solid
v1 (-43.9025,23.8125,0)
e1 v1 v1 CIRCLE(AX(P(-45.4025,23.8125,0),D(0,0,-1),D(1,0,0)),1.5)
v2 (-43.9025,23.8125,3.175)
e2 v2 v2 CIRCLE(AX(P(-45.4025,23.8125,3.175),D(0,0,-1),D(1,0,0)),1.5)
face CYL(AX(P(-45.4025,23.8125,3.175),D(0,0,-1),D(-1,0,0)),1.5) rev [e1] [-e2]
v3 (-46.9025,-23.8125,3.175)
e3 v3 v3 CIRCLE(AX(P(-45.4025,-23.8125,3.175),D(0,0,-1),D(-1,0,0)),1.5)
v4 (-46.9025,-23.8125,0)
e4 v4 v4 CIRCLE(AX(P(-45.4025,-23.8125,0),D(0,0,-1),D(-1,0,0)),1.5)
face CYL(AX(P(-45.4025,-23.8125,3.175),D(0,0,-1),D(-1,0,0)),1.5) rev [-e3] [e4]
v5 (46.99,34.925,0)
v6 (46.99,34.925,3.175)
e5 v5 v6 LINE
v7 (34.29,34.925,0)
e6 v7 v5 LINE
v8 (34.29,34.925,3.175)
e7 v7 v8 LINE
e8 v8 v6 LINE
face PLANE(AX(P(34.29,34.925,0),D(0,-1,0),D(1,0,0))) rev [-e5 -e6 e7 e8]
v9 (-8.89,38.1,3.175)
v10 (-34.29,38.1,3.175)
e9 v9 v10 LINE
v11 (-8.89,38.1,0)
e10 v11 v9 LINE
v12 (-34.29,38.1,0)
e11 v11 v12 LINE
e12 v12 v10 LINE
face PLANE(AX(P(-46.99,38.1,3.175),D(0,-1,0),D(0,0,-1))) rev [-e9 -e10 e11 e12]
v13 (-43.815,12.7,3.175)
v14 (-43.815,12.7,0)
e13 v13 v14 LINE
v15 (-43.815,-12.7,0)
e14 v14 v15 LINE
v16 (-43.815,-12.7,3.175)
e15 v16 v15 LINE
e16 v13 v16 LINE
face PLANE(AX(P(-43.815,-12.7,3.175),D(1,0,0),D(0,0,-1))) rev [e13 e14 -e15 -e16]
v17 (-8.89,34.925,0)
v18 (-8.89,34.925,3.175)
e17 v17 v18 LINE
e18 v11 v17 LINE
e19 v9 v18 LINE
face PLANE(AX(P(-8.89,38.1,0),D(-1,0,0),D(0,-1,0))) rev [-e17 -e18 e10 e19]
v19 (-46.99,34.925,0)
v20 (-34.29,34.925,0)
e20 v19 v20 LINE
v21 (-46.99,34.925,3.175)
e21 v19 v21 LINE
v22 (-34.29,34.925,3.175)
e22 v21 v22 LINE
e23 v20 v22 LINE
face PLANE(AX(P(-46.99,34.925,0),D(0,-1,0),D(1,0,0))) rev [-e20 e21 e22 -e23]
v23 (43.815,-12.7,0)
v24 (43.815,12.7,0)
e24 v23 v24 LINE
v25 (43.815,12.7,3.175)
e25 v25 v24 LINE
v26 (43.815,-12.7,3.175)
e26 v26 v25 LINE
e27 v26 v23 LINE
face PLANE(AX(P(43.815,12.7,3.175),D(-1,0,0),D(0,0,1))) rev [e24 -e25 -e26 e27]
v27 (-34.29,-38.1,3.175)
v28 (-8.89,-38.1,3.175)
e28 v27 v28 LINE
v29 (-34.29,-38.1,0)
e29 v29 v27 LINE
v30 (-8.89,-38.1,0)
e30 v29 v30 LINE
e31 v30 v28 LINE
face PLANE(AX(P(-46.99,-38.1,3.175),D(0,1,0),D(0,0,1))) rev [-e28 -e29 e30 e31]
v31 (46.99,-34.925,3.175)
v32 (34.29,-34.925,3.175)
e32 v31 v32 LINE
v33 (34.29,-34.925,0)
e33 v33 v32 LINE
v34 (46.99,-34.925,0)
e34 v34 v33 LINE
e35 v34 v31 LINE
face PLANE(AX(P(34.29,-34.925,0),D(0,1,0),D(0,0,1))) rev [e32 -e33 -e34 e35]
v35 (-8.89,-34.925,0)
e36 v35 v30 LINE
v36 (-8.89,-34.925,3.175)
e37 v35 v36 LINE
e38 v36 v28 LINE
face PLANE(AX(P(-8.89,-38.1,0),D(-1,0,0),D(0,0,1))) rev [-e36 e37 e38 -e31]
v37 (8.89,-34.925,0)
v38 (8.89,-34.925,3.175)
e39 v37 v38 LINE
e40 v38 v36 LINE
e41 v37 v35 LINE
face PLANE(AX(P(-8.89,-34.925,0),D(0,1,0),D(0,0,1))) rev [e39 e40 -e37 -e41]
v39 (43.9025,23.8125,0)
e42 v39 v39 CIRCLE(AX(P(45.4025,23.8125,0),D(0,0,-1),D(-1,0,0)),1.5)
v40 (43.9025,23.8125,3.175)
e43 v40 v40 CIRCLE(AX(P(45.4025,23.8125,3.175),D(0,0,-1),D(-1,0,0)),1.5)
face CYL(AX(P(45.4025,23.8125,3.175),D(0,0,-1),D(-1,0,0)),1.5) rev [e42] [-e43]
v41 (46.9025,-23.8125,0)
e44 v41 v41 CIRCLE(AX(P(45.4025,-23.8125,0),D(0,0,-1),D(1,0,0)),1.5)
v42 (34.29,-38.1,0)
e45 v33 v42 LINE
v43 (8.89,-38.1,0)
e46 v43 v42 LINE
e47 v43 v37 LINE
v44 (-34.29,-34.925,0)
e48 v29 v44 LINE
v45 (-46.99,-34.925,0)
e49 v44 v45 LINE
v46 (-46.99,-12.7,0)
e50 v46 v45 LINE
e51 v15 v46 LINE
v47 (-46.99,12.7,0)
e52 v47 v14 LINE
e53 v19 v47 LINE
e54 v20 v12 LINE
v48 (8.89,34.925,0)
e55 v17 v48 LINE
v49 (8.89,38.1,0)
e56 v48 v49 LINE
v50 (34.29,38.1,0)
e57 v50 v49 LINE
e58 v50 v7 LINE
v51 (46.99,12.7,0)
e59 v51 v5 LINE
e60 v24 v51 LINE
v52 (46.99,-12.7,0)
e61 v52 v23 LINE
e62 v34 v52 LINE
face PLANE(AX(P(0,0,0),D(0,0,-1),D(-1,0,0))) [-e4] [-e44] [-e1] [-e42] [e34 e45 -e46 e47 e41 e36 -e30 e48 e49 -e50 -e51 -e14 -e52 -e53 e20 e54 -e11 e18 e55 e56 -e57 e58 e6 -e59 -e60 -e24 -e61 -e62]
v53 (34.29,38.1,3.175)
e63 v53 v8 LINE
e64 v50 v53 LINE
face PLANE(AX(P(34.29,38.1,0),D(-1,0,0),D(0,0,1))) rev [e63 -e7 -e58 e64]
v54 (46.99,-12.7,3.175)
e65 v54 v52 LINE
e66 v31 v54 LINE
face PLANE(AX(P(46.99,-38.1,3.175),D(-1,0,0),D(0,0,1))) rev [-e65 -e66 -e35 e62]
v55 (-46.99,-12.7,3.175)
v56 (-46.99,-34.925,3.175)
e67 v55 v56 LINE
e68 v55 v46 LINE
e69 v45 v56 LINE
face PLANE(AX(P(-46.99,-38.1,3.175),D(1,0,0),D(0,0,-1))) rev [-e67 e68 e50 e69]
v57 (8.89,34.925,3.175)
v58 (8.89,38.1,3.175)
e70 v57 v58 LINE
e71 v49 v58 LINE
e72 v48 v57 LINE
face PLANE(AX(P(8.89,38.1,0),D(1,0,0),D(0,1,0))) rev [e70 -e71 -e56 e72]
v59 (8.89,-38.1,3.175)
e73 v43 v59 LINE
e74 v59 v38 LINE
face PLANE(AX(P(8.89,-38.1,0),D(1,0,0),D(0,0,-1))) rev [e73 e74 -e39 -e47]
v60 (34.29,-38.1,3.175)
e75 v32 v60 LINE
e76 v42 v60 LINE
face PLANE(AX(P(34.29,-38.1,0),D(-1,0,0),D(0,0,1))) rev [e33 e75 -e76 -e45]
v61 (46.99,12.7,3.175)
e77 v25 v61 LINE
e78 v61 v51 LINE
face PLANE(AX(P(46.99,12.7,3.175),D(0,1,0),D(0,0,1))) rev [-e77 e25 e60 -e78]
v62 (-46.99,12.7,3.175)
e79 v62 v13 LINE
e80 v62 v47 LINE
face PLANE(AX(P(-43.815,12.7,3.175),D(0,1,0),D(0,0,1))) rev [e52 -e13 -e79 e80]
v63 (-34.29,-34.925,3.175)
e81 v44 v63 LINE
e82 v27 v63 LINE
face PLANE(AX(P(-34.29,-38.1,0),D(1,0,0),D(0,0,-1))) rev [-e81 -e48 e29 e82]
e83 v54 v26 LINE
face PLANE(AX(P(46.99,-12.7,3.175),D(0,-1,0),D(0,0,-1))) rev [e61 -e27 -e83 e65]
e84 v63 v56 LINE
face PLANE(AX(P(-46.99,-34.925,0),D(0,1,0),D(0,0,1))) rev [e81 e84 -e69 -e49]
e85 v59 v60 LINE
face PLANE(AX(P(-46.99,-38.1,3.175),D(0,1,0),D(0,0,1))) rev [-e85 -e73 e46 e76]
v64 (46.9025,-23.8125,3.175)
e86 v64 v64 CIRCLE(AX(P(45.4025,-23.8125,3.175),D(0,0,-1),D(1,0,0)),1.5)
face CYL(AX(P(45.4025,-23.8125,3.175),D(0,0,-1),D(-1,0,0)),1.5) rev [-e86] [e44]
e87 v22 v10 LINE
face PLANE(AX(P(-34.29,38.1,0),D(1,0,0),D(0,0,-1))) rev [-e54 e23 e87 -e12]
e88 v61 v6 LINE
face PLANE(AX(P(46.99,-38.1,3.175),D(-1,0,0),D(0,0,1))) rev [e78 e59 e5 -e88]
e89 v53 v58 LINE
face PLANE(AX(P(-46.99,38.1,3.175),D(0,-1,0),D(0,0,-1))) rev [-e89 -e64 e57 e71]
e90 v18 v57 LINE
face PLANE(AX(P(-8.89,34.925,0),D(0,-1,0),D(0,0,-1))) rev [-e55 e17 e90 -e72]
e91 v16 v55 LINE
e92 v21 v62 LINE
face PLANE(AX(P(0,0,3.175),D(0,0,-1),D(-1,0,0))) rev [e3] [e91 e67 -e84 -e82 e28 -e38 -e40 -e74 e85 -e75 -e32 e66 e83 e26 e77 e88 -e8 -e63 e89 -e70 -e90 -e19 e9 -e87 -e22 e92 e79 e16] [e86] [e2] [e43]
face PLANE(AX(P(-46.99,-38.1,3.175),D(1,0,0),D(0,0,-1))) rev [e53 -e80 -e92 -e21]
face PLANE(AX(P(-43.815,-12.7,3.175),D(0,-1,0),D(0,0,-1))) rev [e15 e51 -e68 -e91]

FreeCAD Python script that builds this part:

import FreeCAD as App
import Part
import Sketcher

V = App.Vector
Q = App.Units.Quantity

doc = App.newDocument("Part")
params = doc.addObject("Spreadsheet::Sheet", "Params")
for row, (alias, value) in enumerate([
    ("sketch1_height", "3 in"),
    ("sketch1_width", "3.7 in"),
    ("pad1_length", "0.125 in"),
    ("sketch2_width", "0.5 in"),
    ("sketch2_width2", "0.7 in"),
    ("sketch2_height", "0.125 in"),
    ("sketch3_height", "1 in"),
    ("sketch3_width", "0.125 in"),
], start=1):
    params.set(f"A{row}", alias)
    params.set(f"B{row}", "=" + value)
    params.setAlias(f"B{row}", alias)

body = doc.addObject("PartDesign::Body", "Body")

sketch1 = body.newObject("Sketcher::SketchObject", "Sketch")
sketch1.AttachmentSupport = (doc.getObject("XY_Plane"), [""])
sketch1.MapMode = "FlatFace"
sketch1.addGeometry([
    Part.LineSegment(V(-47, 38, 0), V(-47, -38, 0)),
    Part.LineSegment(V(-47, -38, 0), V(47, -38, 0)),
    Part.LineSegment(V(47, -38, 0), V(47, 38, 0)),
    Part.LineSegment(V(47, 38, 0), V(-47, 38, 0)),
], False)
sketch1.addConstraint([
    Sketcher.Constraint("Coincident", 0, 2, 1, 1),
    Sketcher.Constraint("Coincident", 1, 2, 2, 1),
    Sketcher.Constraint("Coincident", 2, 2, 3, 1),
    Sketcher.Constraint("Coincident", 3, 2, 0, 1),
    Sketcher.Constraint("Vertical", 0),
    Sketcher.Constraint("Horizontal", 1),
    Sketcher.Constraint("Vertical", 2),
    Sketcher.Constraint("Horizontal", 3),
    Sketcher.Constraint("Symmetric", 0, 2, 2, 2, -1, 1),
    Sketcher.Constraint("DistanceY", 0, 2, 0, 1, Q("3 in")),
    Sketcher.Constraint("DistanceX", 1, 1, 1, 2, Q("3.7 in")),
])
sketch1.setExpression("Constraints[9]", "Params.sketch1_height")
sketch1.setExpression("Constraints[10]", "Params.sketch1_width")
pad1 = body.newObject("PartDesign::Pad", "Pad")
pad1.Profile = sketch1
pad1.setExpression("Length", "Params.pad1_length")

sketch2 = body.newObject("Sketcher::SketchObject", "Sketch001")
sketch2.AttachmentSupport = (doc.getObject("XY_Plane"), [""])
sketch2.MapMode = "FlatFace"
sketch2.AttachmentOffset = App.Placement(V(0, 0, 0.125 * 25.4), App.Rotation())
sketch2.addGeometry([
    Part.LineSegment(V(34.3, 38.1, 0), V(34.3, 34.9, 0)),
    Part.LineSegment(V(34.3, 34.9, 0), V(47, 34.9, 0)),
    Part.LineSegment(V(47, 34.9, 0), V(47, 38.1, 0)),
    Part.LineSegment(V(47, 38.1, 0), V(34.3, 38.1, 0)),
    Part.LineSegment(V(-47, -34.9, 0), V(-47, -38.1, 0)),
    Part.LineSegment(V(-47, -38.1, 0), V(-34.3, -38.1, 0)),
    Part.LineSegment(V(-34.3, -38.1, 0), V(-34.3, -34.9, 0)),
    Part.LineSegment(V(-34.3, -34.9, 0), V(-47, -34.9, 0)),
    Part.LineSegment(V(-8.9, -34.9, 0), V(-8.9, -38.1, 0)),
    Part.LineSegment(V(-8.9, -38.1, 0), V(8.9, -38.1, 0)),
    Part.LineSegment(V(8.9, -38.1, 0), V(8.9, -34.9, 0)),
    Part.LineSegment(V(8.9, -34.9, 0), V(-8.9, -34.9, 0)),
    Part.LineSegment(V(34.3, -34.9, 0), V(34.3, -38.1, 0)),
    Part.LineSegment(V(34.3, -38.1, 0), V(47, -38.1, 0)),
    Part.LineSegment(V(47, -38.1, 0), V(47, -34.9, 0)),
    Part.LineSegment(V(47, -34.9, 0), V(34.3, -34.9, 0)),
    Part.LineSegment(V(-8.9, 38.1, 0), V(-8.9, 34.9, 0)),
    Part.LineSegment(V(-8.9, 34.9, 0), V(8.9, 34.9, 0)),
    Part.LineSegment(V(8.9, 34.9, 0), V(8.9, 38.1, 0)),
    Part.LineSegment(V(8.9, 38.1, 0), V(-8.9, 38.1, 0)),
    Part.LineSegment(V(-47, 38.1, 0), V(-47, 34.9, 0)),
    Part.LineSegment(V(-47, 34.9, 0), V(-34.3, 34.9, 0)),
    Part.LineSegment(V(-34.3, 34.9, 0), V(-34.3, 38.1, 0)),
    Part.LineSegment(V(-34.3, 38.1, 0), V(-47, 38.1, 0)),
], False)
sketch2.addConstraint([
    Sketcher.Constraint("Coincident", 0, 2, 1, 1),
    Sketcher.Constraint("Coincident", 1, 2, 2, 1),
    Sketcher.Constraint("Coincident", 2, 2, 3, 1),
    Sketcher.Constraint("Coincident", 3, 2, 0, 1),
    Sketcher.Constraint("Coincident", 4, 2, 5, 1),
    Sketcher.Constraint("Coincident", 5, 2, 6, 1),
    Sketcher.Constraint("Coincident", 6, 2, 7, 1),
    Sketcher.Constraint("Coincident", 7, 2, 4, 1),
    Sketcher.Constraint("Coincident", 8, 2, 9, 1),
    Sketcher.Constraint("Coincident", 9, 2, 10, 1),
    Sketcher.Constraint("Coincident", 10, 2, 11, 1),
    Sketcher.Constraint("Coincident", 11, 2, 8, 1),
    Sketcher.Constraint("Coincident", 12, 2, 13, 1),
    Sketcher.Constraint("Coincident", 13, 2, 14, 1),
    Sketcher.Constraint("Coincident", 14, 2, 15, 1),
    Sketcher.Constraint("Coincident", 15, 2, 12, 1),
    Sketcher.Constraint("Coincident", 16, 2, 17, 1),
    Sketcher.Constraint("Coincident", 17, 2, 18, 1),
    Sketcher.Constraint("Coincident", 18, 2, 19, 1),
    Sketcher.Constraint("Coincident", 19, 2, 16, 1),
    Sketcher.Constraint("Coincident", 20, 2, 21, 1),
    Sketcher.Constraint("Coincident", 21, 2, 22, 1),
    Sketcher.Constraint("Coincident", 22, 2, 23, 1),
    Sketcher.Constraint("Coincident", 23, 2, 20, 1),
    Sketcher.Constraint("Vertical", 0),
    Sketcher.Constraint("Horizontal", 1),
    Sketcher.Constraint("Vertical", 2),
    Sketcher.Constraint("Horizontal", 3),
    Sketcher.Constraint("Vertical", 4),
    Sketcher.Constraint("Horizontal", 5),
    Sketcher.Constraint("Vertical", 6),
    Sketcher.Constraint("Horizontal", 7),
    Sketcher.Constraint("Vertical", 8),
    Sketcher.Constraint("Horizontal", 9),
    Sketcher.Constraint("Vertical", 10),
    Sketcher.Constraint("Horizontal", 11),
    Sketcher.Constraint("Vertical", 12),
    Sketcher.Constraint("Horizontal", 13),
    Sketcher.Constraint("Vertical", 14),
    Sketcher.Constraint("Horizontal", 15),
    Sketcher.Constraint("Vertical", 16),
    Sketcher.Constraint("Horizontal", 17),
    Sketcher.Constraint("Vertical", 18),
    Sketcher.Constraint("Horizontal", 19),
    Sketcher.Constraint("Vertical", 20),
    Sketcher.Constraint("Horizontal", 21),
    Sketcher.Constraint("Vertical", 22),
    Sketcher.Constraint("Horizontal", 23),
    Sketcher.Constraint("Symmetric", 2, 2, 4, 2, -1, 1),
    Sketcher.Constraint("Symmetric", 0, 2, 6, 2, -1, 1),
    Sketcher.Constraint("Symmetric", 10, 2, 16, 2, -1, 1),
    Sketcher.Constraint("Symmetric", 8, 2, 18, 2, -1, 1),
    Sketcher.Constraint("Symmetric", 14, 2, 20, 2, -1, 1),
    Sketcher.Constraint("Symmetric", 12, 2, 22, 2, -1, 1),
    Sketcher.Constraint("Symmetric", 5, 2, 12, 2, -2),
    Sketcher.Constraint("Symmetric", 7, 2, 14, 2, -2),
    Sketcher.Constraint("Horizontal", 5, 2, 8, 2),
    Sketcher.Constraint("Horizontal", 7, 2, 10, 2),
    Sketcher.Constraint("Vertical", 11, 2, 16, 2),
    Sketcher.Constraint("DistanceX", 1, 1, 1, 2, Q("0.5 in")),
    Sketcher.Constraint("DistanceX", 9, 1, 9, 2, Q("0.7 in")),
    Sketcher.Constraint("DistanceY", 4, 2, 3, 2, Q("3 in")),
    Sketcher.Constraint("DistanceX", 5, 2, 8, 2, Q("1 in")),
    Sketcher.Constraint("DistanceY", 0, 2, 0, 1, Q("0.125 in")),
])
sketch2.setExpression("Constraints[59]", "Params.sketch2_width")
sketch2.setExpression("Constraints[60]", "Params.sketch2_width2")
sketch2.setExpression("Constraints[63]", "Params.sketch2_height")
pocket1 = body.newObject("PartDesign::Pocket", "Pocket")
pocket1.Profile = sketch2
pocket1.Type = "ThroughAll"

sketch3 = body.newObject("Sketcher::SketchObject", "Sketch002")
sketch3.AttachmentSupport = (doc.getObject("XY_Plane"), [""])
sketch3.MapMode = "FlatFace"
sketch3.addGeometry([
    Part.LineSegment(V(47, 12.7, 0), V(47, -12.7, 0)),
    Part.LineSegment(V(47, -12.7, 0), V(43.8, -12.7, 0)),
    Part.LineSegment(V(43.8, -12.7, 0), V(43.8, 12.7, 0)),
    Part.LineSegment(V(43.8, 12.7, 0), V(47, 12.7, 0)),
    Part.LineSegment(V(-43.8, 12.7, 0), V(-43.8, -12.7, 0)),
    Part.LineSegment(V(-43.8, -12.7, 0), V(-47, -12.7, 0)),
    Part.LineSegment(V(-47, -12.7, 0), V(-47, 12.7, 0)),
    Part.LineSegment(V(-47, 12.7, 0), V(-43.8, 12.7, 0)),
], False)
sketch3.addConstraint([
    Sketcher.Constraint("Coincident", 0, 2, 1, 1),
    Sketcher.Constraint("Coincident", 1, 2, 2, 1),
    Sketcher.Constraint("Coincident", 2, 2, 3, 1),
    Sketcher.Constraint("Coincident", 3, 2, 0, 1),
    Sketcher.Constraint("Coincident", 4, 2, 5, 1),
    Sketcher.Constraint("Coincident", 5, 2, 6, 1),
    Sketcher.Constraint("Coincident", 6, 2, 7, 1),
    Sketcher.Constraint("Coincident", 7, 2, 4, 1),
    Sketcher.Constraint("Vertical", 0),
    Sketcher.Constraint("Horizontal", 1),
    Sketcher.Constraint("Vertical", 2),
    Sketcher.Constraint("Horizontal", 3),
    Sketcher.Constraint("Vertical", 4),
    Sketcher.Constraint("Horizontal", 5),
    Sketcher.Constraint("Vertical", 6),
    Sketcher.Constraint("Horizontal", 7),
    Sketcher.Constraint("Symmetric", 2, 2, 4, 2, -1, 1),
    Sketcher.Constraint("Symmetric", 0, 2, 6, 2, -1, 1),
    Sketcher.Constraint("Horizontal", 1, 2, 4, 2),
    Sketcher.Constraint("DistanceY", 0, 2, 0, 1, Q("1 in")),
    Sketcher.Constraint("DistanceX", 5, 2, 0, 2, Q("3.7 in")),
    Sketcher.Constraint("DistanceX", 1, 2, 1, 1, Q("0.125 in")),
])
sketch3.setExpression("Constraints[19]", "Params.sketch3_height")
sketch3.setExpression("Constraints[21]", "Params.sketch3_width")
pocket2 = body.newObject("PartDesign::Pocket", "Pocket001")
pocket2.Profile = sketch3
pocket2.Type = "ThroughAll"
pocket2.Reversed = True

sketch4 = body.newObject("Sketcher::SketchObject", "Sketch003")
sketch4.AttachmentSupport = (doc.getObject("XY_Plane"), [""])
sketch4.MapMode = "FlatFace"
sketch4.addGeometry([
    Part.Circle(V(45.4, 23.8, 0), V(0, 0, 1), 1.5),
    Part.Circle(V(45.4, -23.8, 0), V(0, 0, 1), 1.5),
    Part.Circle(V(-45.4, -23.8, 0), V(0, 0, 1), 1.5),
    Part.Circle(V(-45.4, 23.8, 0), V(0, 0, 1), 1.5),
], False)
sketch4.addConstraint([
    Sketcher.Constraint("Equal", 0, 1),
    Sketcher.Constraint("Equal", 1, 2),
    Sketcher.Constraint("Equal", 2, 3),
    Sketcher.Constraint("Symmetric", 0, 3, 2, 3, -1, 1),
    Sketcher.Constraint("Symmetric", 1, 3, 3, 3, -1, 1),
    Sketcher.Constraint("Symmetric", 1, 3, 2, 3, -2),
    Sketcher.Constraint("Diameter", 0, Q("3 mm")),
    Sketcher.Constraint("DistanceY", -1, 1, 0, 3, Q("0.9375 in")),
    Sketcher.Constraint("DistanceX", 2, 3, 1, 3, Q("3.575 in")),
])
pocket3 = body.newObject("PartDesign::Pocket", "Pocket002")
pocket3.Profile = sketch4
pocket3.Type = "ThroughAll"
pocket3.Reversed = True

doc.recompute()
